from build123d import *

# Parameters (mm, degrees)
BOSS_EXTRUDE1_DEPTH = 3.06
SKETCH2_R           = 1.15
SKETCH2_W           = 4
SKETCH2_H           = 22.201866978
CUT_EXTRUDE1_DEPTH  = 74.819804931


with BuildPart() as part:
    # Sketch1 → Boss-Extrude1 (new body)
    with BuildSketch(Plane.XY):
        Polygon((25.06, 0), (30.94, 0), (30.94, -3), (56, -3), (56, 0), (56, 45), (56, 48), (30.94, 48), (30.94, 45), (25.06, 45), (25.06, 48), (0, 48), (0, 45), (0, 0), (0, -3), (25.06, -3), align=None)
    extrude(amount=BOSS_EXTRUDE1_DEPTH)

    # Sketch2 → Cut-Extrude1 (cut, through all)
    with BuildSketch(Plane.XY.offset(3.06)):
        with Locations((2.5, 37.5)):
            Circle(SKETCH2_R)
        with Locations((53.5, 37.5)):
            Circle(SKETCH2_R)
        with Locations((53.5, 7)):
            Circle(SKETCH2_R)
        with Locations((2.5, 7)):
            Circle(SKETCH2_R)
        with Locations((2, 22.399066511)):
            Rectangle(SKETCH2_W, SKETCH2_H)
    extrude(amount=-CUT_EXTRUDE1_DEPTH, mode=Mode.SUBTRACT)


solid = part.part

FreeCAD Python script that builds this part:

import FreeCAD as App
import Part
import Sketcher


def add_polygon(sketch, points):
    """Adds a closed chain of lines whose ends are joined by coincident constraints."""
    first, n = sketch.GeometryCount, len(points)
    for a, b in zip(points, points[1:] + points[:1]):
        sketch.addGeometry(Part.LineSegment(App.Vector(*a, 0), App.Vector(*b, 0)), False)
    for i in range(n):
        sketch.addConstraint(Sketcher.Constraint("Coincident", first + i, 2, first + (i + 1) % n, 1))

doc = App.newDocument("Part")
params = doc.addObject("Spreadsheet::Sheet", "Params")
for row, (alias, value) in enumerate([
    ("sketch1_height", "3 mm"),
    ("sketch1_height2", "51 mm"),
    ("sketch1_width", "5.88 mm"),
    ("pad1_length", "3.06 mm"),
    ("sketch2_diameter", "2.3 mm"),
    ("sketch2_width", "4 mm"),
], start=1):
    params.set(f"A{row}", alias)
    params.set(f"B{row}", "=" + value)
    params.setAlias(f"B{row}", alias)

body = doc.addObject("PartDesign::Body", "Body")

sketch1 = body.newObject("Sketcher::SketchObject", "Sketch")
sketch1.AttachmentSupport = (doc.getObject("XY_Plane"), [""])
sketch1.MapMode = "FlatFace"
add_polygon(sketch1, [(25.1, 0), (30.9, 0), (30.9, -3), (56, -3), (56, 48), (30.9, 48), (30.9, 45), (25.1, 45), (25.1, 48), (0, 48), (0, -3), (25.1, -3)])
sketch1.addConstraint([
    Sketcher.Constraint("Horizontal", 0),
    Sketcher.Constraint("Vertical", 1),
    Sketcher.Constraint("Horizontal", 2),
    Sketcher.Constraint("Vertical", 3),
    Sketcher.Constraint("Horizontal", 4),
    Sketcher.Constraint("Vertical", 5),
    Sketcher.Constraint("Horizontal", 6),
    Sketcher.Constraint("Vertical", 7),
    Sketcher.Constraint("Horizontal", 8),
    Sketcher.Constraint("Vertical", 9),
    Sketcher.Constraint("Horizontal", 10),
    Sketcher.Constraint("Vertical", 11),
    Sketcher.Constraint("PointOnObject", 0, 2, -1),
    Sketcher.Constraint("PointOnObject", 8, 2, -2),
    Sketcher.Constraint("Horizontal", 4, 2, 7, 2),
    Sketcher.Constraint("Horizontal", 2, 2, 9, 2),
    Sketcher.Constraint("Vertical", 1, 2, 4, 2),
    Sketcher.Constraint("Vertical", 7, 2, 10, 2),
    Sketcher.Constraint("Equal", 4, 8),
    Sketcher.Constraint("Equal", 1, 5),
    Sketcher.Constraint("DistanceY", 1, 2, 1, 1, 3.0),
    Sketcher.Constraint("DistanceY", 3, 1, 3, 2, 51.0),
    Sketcher.Constraint("DistanceX", -1, 1, 2, 2, 56.0),
    Sketcher.Constraint("DistanceX", 0, 1, 0, 2, 5.88),
])
sketch1.setExpression("Constraints[32]", "Params.sketch1_height")
sketch1.setExpression("Constraints[33]", "Params.sketch1_height2")
sketch1.setExpression("Constraints[35]", "Params.sketch1_width")
pad1 = body.newObject("PartDesign::Pad", "Pad")
pad1.Profile = sketch1
pad1.setExpression("Length", "Params.pad1_length")

sketch2 = body.newObject("Sketcher::SketchObject", "Sketch001")
sketch2.AttachmentSupport = (doc.getObject("XY_Plane"), [""])
sketch2.MapMode = "FlatFace"
sketch2.AttachmentOffset = App.Placement(App.Vector(0, 0, 3.06), App.Rotation())
sketch2.addGeometry(Part.Circle(App.Vector(2.5, 37.5, 0), App.Vector(0, 0, 1), 1.1), False)
sketch2.addGeometry(Part.Circle(App.Vector(53.5, 37.5, 0), App.Vector(0, 0, 1), 1.1), False)
sketch2.addGeometry(Part.Circle(App.Vector(53.5, 7, 0), App.Vector(0, 0, 1), 1.1), False)
sketch2.addGeometry(Part.Circle(App.Vector(2.5, 7, 0), App.Vector(0, 0, 1), 1.1), False)
add_polygon(sketch2, [(0, 33.5), (0, 11.3), (4, 11.3), (4, 33.5)])
sketch2.addConstraint([
    Sketcher.Constraint("Vertical", 4),
    Sketcher.Constraint("Horizontal", 5),
    Sketcher.Constraint("Vertical", 6),
    Sketcher.Constraint("Horizontal", 7),
    Sketcher.Constraint("Equal", 0, 1),
    Sketcher.Constraint("Equal", 1, 2),
    Sketcher.Constraint("Equal", 2, 3),
    Sketcher.Constraint("PointOnObject", 4, 2, -2),
    Sketcher.Constraint("Horizontal", 0, 3, 1, 3),
    Sketcher.Constraint("Horizontal", 2, 3, 3, 3),
    Sketcher.Constraint("Vertical", 1, 3, 2, 3),
    Sketcher.Constraint("Vertical", 0, 3, 3, 3),
    Sketcher.Constraint("Diameter", 0, 2.3),
    Sketcher.Constraint("DistanceX", 5, 1, 5, 2, 4.0),
    Sketcher.Constraint("DistanceY", -1, 1, 2, 3, 7.0),
    Sketcher.Constraint("DistanceX", 0, 3, 1, 3, 51.0),
    Sketcher.Constraint("DistanceY", 6, 2, 0, 3, 4.0),
    Sketcher.Constraint("DistanceX", -1, 1, 0, 3, 2.5),
    Sketcher.Constraint("DistanceY", -1, 1, 0, 3, 37.5),
    Sketcher.Constraint("DistanceY", 4, 2, 4, 1, 22.201867),
])
sketch2.setExpression("Constraints[16]", "Params.sketch2_diameter")
sketch2.setExpression("Constraints[17]", "Params.sketch2_width")
pocket1 = body.newObject("PartDesign::Pocket", "Pocket")
pocket1.Profile = sketch2
pocket1.Type = "ThroughAll"

doc.recompute()
